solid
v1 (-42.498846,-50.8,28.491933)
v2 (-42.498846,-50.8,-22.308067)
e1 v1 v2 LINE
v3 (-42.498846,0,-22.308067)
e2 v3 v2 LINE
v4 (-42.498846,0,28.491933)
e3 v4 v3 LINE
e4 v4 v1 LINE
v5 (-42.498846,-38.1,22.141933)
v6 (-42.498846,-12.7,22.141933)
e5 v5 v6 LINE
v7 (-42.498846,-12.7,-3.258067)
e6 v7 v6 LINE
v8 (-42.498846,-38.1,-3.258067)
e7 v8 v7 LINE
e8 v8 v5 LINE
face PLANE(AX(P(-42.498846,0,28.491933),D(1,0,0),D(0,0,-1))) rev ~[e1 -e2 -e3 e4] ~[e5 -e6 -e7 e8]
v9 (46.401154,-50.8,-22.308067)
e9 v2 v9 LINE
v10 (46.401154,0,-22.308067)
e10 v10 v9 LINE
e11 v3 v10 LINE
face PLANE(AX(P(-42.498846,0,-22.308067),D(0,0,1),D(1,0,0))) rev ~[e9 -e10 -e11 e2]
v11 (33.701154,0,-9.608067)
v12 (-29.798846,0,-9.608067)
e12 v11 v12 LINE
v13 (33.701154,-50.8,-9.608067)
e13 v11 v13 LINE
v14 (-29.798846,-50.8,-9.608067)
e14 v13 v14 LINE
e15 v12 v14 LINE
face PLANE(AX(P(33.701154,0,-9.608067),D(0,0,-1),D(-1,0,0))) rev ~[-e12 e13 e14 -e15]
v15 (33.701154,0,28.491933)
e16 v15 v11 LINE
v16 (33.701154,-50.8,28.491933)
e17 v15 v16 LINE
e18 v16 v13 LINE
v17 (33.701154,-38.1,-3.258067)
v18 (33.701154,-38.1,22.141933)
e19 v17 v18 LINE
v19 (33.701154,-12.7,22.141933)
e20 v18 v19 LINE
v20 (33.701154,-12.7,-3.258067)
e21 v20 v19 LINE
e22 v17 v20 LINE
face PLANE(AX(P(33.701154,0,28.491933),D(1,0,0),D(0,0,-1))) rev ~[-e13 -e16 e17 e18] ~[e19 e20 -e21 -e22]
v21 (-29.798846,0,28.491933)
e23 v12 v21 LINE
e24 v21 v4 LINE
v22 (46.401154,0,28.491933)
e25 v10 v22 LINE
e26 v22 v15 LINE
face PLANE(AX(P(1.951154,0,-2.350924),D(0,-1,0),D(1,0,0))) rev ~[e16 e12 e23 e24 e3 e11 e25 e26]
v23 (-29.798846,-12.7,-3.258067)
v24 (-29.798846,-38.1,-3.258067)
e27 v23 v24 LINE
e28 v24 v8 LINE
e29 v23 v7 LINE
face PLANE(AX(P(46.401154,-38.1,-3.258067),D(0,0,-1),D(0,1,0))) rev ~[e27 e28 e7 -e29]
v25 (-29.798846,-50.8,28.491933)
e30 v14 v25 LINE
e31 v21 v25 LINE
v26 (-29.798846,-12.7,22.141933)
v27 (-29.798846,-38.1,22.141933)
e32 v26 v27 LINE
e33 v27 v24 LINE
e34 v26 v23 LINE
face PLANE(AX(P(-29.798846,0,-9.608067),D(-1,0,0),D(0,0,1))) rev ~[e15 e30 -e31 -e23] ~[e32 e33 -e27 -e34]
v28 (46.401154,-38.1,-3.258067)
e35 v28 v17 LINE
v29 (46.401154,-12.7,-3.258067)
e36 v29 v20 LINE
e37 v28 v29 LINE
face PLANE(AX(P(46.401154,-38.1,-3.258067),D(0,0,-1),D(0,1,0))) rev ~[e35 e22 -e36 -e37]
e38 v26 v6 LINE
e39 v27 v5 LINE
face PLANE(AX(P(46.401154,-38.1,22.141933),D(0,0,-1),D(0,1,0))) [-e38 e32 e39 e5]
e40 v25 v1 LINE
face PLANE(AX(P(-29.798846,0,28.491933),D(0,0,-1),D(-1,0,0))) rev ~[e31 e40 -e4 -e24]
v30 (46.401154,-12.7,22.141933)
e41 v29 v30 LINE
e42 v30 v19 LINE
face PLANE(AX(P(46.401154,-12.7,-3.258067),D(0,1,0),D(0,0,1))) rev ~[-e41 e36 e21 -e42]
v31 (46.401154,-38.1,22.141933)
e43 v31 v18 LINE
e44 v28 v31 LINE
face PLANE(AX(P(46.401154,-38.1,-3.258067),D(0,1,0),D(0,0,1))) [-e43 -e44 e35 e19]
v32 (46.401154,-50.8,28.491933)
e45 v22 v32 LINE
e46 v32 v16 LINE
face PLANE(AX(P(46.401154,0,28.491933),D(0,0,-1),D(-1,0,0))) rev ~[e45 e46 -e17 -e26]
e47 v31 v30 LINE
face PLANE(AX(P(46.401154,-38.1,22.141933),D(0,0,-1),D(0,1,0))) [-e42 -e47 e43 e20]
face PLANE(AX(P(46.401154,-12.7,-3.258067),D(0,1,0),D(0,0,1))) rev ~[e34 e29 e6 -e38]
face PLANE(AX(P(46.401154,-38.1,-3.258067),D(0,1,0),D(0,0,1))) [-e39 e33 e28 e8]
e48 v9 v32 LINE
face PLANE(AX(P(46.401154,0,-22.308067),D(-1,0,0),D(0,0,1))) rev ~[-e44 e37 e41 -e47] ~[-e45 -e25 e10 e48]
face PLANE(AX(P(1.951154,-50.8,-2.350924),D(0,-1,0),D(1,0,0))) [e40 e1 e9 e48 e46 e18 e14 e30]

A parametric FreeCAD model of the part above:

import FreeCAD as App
import Part
import Sketcher

V = App.Vector
Q = App.Units.Quantity

doc = App.newDocument("Part")
body = doc.addObject("PartDesign::Body", "Body")

sketch1 = body.newObject("Sketcher::SketchObject", "Sketch")
sketch1.AttachmentSupport = (doc.getObject("XZ_Plane"), [""])
sketch1.MapMode = "FlatFace"
sketch1.addGeometry(Part.LineSegment(V(-30, 28, 0), V(-42, 28, 0)), False)
sketch1.addGeometry(Part.LineSegment(V(-42, 28, 0), V(-42, -22, 0)), False)
sketch1.addGeometry(Part.LineSegment(V(-42, -22, 0), V(46, -22, 0)), False)
sketch1.addGeometry(Part.LineSegment(V(46, -22, 0), V(46, 28, 0)), False)
sketch1.addGeometry(Part.LineSegment(V(46, 28, 0), V(34, 28, 0)), False)
sketch1.addGeometry(Part.LineSegment(V(34, 28, 0), V(34, -10, 0)), False)
sketch1.addGeometry(Part.LineSegment(V(34, -10, 0), V(-30, -10, 0)), False)
sketch1.addGeometry(Part.LineSegment(V(-30, -10, 0), V(-30, 28, 0)), False)
sketch1.addConstraint(Sketcher.Constraint("Coincident", 0, 2, 1, 1))
sketch1.addConstraint(Sketcher.Constraint("Coincident", 1, 2, 2, 1))
sketch1.addConstraint(Sketcher.Constraint("Coincident", 2, 2, 3, 1))
sketch1.addConstraint(Sketcher.Constraint("Coincident", 3, 2, 4, 1))
sketch1.addConstraint(Sketcher.Constraint("Coincident", 4, 2, 5, 1))
sketch1.addConstraint(Sketcher.Constraint("Coincident", 5, 2, 6, 1))
sketch1.addConstraint(Sketcher.Constraint("Coincident", 6, 2, 7, 1))
sketch1.addConstraint(Sketcher.Constraint("Coincident", 7, 2, 0, 1))
sketch1.addConstraint(Sketcher.Constraint("Horizontal", 0))
sketch1.addConstraint(Sketcher.Constraint("Vertical", 1))
sketch1.addConstraint(Sketcher.Constraint("Horizontal", 2))
sketch1.addConstraint(Sketcher.Constraint("Vertical", 3))
sketch1.addConstraint(Sketcher.Constraint("Horizontal", 4))
sketch1.addConstraint(Sketcher.Constraint("Vertical", 5))
sketch1.addConstraint(Sketcher.Constraint("Horizontal", 6))
sketch1.addConstraint(Sketcher.Constraint("Vertical", 7))
sketch1.addConstraint(Sketcher.Constraint("Horizontal", 0, 2, 3, 2))
sketch1.addConstraint(Sketcher.Constraint("Equal", 0, 4))
sketch1.addConstraint(Sketcher.Constraint("DistanceY", 1, 2, 1, 1, Q("2 in")))
sketch1.addConstraint(Sketcher.Constraint("DistanceX", 0, 2, 0, 1, Q("0.5 in")))
sketch1.addConstraint(Sketcher.Constraint("DistanceX", 2, 1, 2, 2, Q("3.5 in")))
sketch1.addConstraint(Sketcher.Constraint("DistanceY", 5, 2, 5, 1, Q("1.5 in")))
sketch1.addConstraint(Sketcher.Constraint("DistanceX", 0, 2, -1, 1, Q("42.498846 mm")))
sketch1.addConstraint(Sketcher.Constraint("DistanceY", -1, 1, 0, 2, Q("28.491933 mm")))
pad1 = body.newObject("PartDesign::Pad", "Pad")
pad1.Profile = sketch1
pad1.Length = Q("2 in")

sketch2 = body.newObject("Sketcher::SketchObject", "Sketch001")
sketch2.AttachmentSupport = (doc.getObject("YZ_Plane"), [""])
sketch2.MapMode = "FlatFace"
sketch2.AttachmentOffset = App.Placement(V(0, 0, 46.401154), App.Rotation())
sketch2.addGeometry(Part.LineSegment(V(-38, 22, 0), V(-38, -3, 0)), False)
sketch2.addGeometry(Part.LineSegment(V(-38, -3, 0), V(-13, -3, 0)), False)
sketch2.addGeometry(Part.LineSegment(V(-13, -3, 0), V(-13, 22, 0)), False)
sketch2.addGeometry(Part.LineSegment(V(-13, 22, 0), V(-38, 22, 0)), False)
sketch2.addConstraint(Sketcher.Constraint("Coincident", 0, 2, 1, 1))
sketch2.addConstraint(Sketcher.Constraint("Coincident", 1, 2, 2, 1))
sketch2.addConstraint(Sketcher.Constraint("Coincident", 2, 2, 3, 1))
sketch2.addConstraint(Sketcher.Constraint("Coincident", 3, 2, 0, 1))
sketch2.addConstraint(Sketcher.Constraint("Vertical", 0))
sketch2.addConstraint(Sketcher.Constraint("Horizontal", 1))
sketch2.addConstraint(Sketcher.Constraint("Vertical", 2))
sketch2.addConstraint(Sketcher.Constraint("Horizontal", 3))
sketch2.addConstraint(Sketcher.Constraint("Equal", 3, 0))
sketch2.addConstraint(Sketcher.Constraint("DistanceX", 1, 1, 1, 2, Q("1 in")))
sketch2.addConstraint(Sketcher.Constraint("DistanceX", 0, 2, -1, 1, Q("1.5 in")))
sketch2.addConstraint(Sketcher.Constraint("DistanceY", 0, 2, -1, 1, Q("3.258067 mm")))
pocket1 = body.newObject("PartDesign::Pocket", "Pocket")
pocket1.Profile = sketch2
pocket1.Type = "ThroughAll"

doc.recompute()
